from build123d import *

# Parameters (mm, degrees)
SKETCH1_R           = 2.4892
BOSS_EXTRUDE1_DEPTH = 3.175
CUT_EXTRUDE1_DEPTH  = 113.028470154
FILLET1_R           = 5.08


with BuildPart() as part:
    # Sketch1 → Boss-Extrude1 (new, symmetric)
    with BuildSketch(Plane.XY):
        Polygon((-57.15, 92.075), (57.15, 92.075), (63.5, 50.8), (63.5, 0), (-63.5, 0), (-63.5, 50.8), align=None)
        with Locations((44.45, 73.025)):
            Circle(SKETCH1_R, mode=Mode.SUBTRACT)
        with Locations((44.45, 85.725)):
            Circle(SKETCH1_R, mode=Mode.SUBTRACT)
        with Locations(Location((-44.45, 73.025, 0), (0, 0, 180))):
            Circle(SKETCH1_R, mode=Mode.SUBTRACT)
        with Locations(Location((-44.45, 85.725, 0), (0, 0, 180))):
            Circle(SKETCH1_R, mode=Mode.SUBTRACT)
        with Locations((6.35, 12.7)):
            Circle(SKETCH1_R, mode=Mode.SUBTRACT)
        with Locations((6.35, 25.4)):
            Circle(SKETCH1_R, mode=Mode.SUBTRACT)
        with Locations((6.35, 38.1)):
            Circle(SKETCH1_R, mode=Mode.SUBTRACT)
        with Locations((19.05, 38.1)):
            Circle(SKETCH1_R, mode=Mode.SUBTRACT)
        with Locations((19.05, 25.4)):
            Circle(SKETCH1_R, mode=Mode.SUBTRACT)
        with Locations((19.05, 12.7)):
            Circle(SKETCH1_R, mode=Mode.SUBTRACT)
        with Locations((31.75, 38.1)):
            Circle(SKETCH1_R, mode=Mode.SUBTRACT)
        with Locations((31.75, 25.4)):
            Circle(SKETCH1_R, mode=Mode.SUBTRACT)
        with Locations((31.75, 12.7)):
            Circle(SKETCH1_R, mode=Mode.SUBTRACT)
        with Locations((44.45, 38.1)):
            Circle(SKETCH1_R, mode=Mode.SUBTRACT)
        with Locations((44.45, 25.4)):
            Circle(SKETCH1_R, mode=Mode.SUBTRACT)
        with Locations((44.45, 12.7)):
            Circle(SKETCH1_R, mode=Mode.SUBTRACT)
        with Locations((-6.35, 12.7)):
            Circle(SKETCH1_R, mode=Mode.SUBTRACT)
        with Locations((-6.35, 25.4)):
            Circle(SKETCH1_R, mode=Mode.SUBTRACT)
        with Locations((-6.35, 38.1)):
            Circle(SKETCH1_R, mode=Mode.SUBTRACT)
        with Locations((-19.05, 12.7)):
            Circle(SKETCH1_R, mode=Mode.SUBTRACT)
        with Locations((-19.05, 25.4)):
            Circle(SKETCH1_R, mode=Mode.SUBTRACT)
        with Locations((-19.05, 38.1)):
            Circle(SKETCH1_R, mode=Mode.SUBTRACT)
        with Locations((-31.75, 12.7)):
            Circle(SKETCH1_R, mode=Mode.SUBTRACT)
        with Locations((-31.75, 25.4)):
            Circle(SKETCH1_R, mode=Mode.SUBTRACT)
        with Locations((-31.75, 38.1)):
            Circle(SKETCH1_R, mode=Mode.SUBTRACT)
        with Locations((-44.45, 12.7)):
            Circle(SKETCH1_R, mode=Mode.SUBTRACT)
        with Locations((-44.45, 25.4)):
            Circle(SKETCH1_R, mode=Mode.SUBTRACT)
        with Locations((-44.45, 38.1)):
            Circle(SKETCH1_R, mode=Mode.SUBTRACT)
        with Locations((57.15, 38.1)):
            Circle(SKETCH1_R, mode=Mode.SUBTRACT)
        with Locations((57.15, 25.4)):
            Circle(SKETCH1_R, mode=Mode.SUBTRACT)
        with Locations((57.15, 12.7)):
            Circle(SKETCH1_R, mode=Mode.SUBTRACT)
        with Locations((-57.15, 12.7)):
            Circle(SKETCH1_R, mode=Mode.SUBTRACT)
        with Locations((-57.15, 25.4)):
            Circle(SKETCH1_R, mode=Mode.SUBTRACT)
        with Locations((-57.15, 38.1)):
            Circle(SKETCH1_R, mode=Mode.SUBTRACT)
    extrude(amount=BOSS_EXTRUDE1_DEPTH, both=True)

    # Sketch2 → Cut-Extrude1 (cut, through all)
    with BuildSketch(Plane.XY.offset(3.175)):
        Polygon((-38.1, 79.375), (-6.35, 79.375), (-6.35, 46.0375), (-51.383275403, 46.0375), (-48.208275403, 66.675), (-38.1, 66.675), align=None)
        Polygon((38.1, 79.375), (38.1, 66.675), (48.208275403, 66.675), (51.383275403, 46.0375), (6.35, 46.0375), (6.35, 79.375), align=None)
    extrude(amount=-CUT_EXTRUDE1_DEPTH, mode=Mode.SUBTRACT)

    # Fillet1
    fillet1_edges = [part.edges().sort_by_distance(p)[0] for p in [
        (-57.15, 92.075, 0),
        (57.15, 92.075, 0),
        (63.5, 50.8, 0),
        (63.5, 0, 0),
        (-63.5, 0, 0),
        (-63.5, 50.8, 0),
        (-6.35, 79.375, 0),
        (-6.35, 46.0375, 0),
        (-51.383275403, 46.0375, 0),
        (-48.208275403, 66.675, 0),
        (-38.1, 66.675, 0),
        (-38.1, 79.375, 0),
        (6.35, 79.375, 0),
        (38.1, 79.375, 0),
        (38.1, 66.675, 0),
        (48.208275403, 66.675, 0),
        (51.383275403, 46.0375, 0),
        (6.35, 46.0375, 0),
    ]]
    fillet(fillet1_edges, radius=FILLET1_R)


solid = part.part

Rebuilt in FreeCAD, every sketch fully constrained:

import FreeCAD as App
import Part
import Sketcher

V = App.Vector
Q = App.Units.Quantity


def edges_at(feature, points):
    """Names of the edges that pass closest to the given points."""
    edges = feature.Shape.Edges
    near = lambda p: min(range(len(edges)), key=lambda i: edges[i].distToShape(Part.Vertex(*p))[0])
    return sorted({f"Edge{near(p) + 1}" for p in points})

doc = App.newDocument("Part")
body = doc.addObject("PartDesign::Body", "Body")

# Sketch on XY plane
sketch1 = body.newObject("Sketcher::SketchObject", "Sketch")
sketch1.AttachmentSupport = (doc.getObject("XY_Plane"), [""])
sketch1.MapMode = "FlatFace"
sketch1.addGeometry(Part.LineSegment(V(57.15, 92.075, 0), V(-57.15, 92.075, 0)), False)
sketch1.addGeometry(Part.LineSegment(V(-57.15, 92.075, 0), V(-63.5, 50.8, 0)), False)
sketch1.addGeometry(Part.LineSegment(V(-63.5, 50.8, 0), V(-63.5, 0, 0)), False)
sketch1.addGeometry(Part.LineSegment(V(-63.5, 0, 0), V(63.5, 0, 0)), False)
sketch1.addGeometry(Part.LineSegment(V(63.5, 0, 0), V(63.5, 50.8, 0)), False)
sketch1.addGeometry(Part.LineSegment(V(63.5, 50.8, 0), V(57.15, 92.075, 0)), False)
sketch1.addGeometry(Part.Circle(V(57.15, 12.7, 0), V(0, 0, 1), 2.4892), False)
sketch1.addGeometry(Part.Circle(V(44.45, 12.7, 0), V(0, 0, 1), 2.4892), False)
sketch1.addGeometry(Part.Circle(V(31.75, 12.7, 0), V(0, 0, 1), 2.4892), False)
sketch1.addGeometry(Part.Circle(V(57.15, 25.4, 0), V(0, 0, 1), 2.4892), False)
sketch1.addGeometry(Part.Circle(V(44.45, 25.4, 0), V(0, 0, 1), 2.4892), False)
sketch1.addGeometry(Part.Circle(V(31.75, 25.4, 0), V(0, 0, 1), 2.4892), False)
sketch1.addGeometry(Part.Circle(V(19.05, 12.7, 0), V(0, 0, 1), 2.4892), False)
sketch1.addGeometry(Part.Circle(V(6.35, 12.7, 0), V(0, 0, 1), 2.4892), False)
sketch1.addGeometry(Part.Circle(V(19.05, 25.4, 0), V(0, 0, 1), 2.4892), False)
sketch1.addGeometry(Part.Circle(V(6.35, 25.4, 0), V(0, 0, 1), 2.4892), False)
sketch1.addGeometry(Part.Circle(V(57.15, 38.1, 0), V(0, 0, 1), 2.4892), False)
sketch1.addGeometry(Part.Circle(V(44.45, 38.1, 0), V(0, 0, 1), 2.4892), False)
sketch1.addGeometry(Part.Circle(V(31.75, 38.1, 0), V(0, 0, 1), 2.4892), False)
sketch1.addGeometry(Part.Circle(V(19.05, 38.1, 0), V(0, 0, 1), 2.4892), False)
sketch1.addGeometry(Part.Circle(V(6.35, 38.1, 0), V(0, 0, 1), 2.4892), False)
sketch1.addGeometry(Part.Circle(V(-6.35, 12.7, 0), V(0, 0, 1), 2.4892), False)
sketch1.addGeometry(Part.Circle(V(-19.05, 12.7, 0), V(0, 0, 1), 2.4892), False)
sketch1.addGeometry(Part.Circle(V(-6.35, 25.4, 0), V(0, 0, 1), 2.4892), False)
sketch1.addGeometry(Part.Circle(V(-19.05, 25.4, 0), V(0, 0, 1), 2.4892), False)
sketch1.addGeometry(Part.Circle(V(-31.75, 12.7, 0), V(0, 0, 1), 2.4892), False)
sketch1.addGeometry(Part.Circle(V(-44.45, 12.7, 0), V(0, 0, 1), 2.4892), False)
sketch1.addGeometry(Part.Circle(V(-57.15, 12.7, 0), V(0, 0, 1), 2.4892), False)
sketch1.addGeometry(Part.Circle(V(-31.75, 25.4, 0), V(0, 0, 1), 2.4892), False)
sketch1.addGeometry(Part.Circle(V(-44.45, 25.4, 0), V(0, 0, 1), 2.4892), False)
sketch1.addGeometry(Part.Circle(V(-57.15, 25.4, 0), V(0, 0, 1), 2.4892), False)
sketch1.addGeometry(Part.Circle(V(-6.35, 38.1, 0), V(0, 0, 1), 2.4892), False)
sketch1.addGeometry(Part.Circle(V(-19.05, 38.1, 0), V(0, 0, 1), 2.4892), False)
sketch1.addGeometry(Part.Circle(V(-31.75, 38.1, 0), V(0, 0, 1), 2.4892), False)
sketch1.addGeometry(Part.Circle(V(-44.45, 38.1, 0), V(0, 0, 1), 2.4892), False)
sketch1.addGeometry(Part.Circle(V(-57.15, 38.1, 0), V(0, 0, 1), 2.4892), False)
sketch1.addGeometry(Part.Circle(V(44.45, 73.025, 0), V(0, 0, 1), 2.4892), False)
sketch1.addGeometry(Part.Circle(V(44.45, 85.725, 0), V(0, 0, 1), 2.4892), False)
sketch1.addGeometry(Part.Circle(V(-44.45, 73.025, 0), V(0, 0, 1), 2.4892), False)
sketch1.addGeometry(Part.Circle(V(-44.45, 85.725, 0), V(0, 0, 1), 2.4892), False)
sketch1.addConstraint(Sketcher.Constraint("Coincident", 0, 2, 1, 1))
sketch1.addConstraint(Sketcher.Constraint("Coincident", 1, 2, 2, 1))
sketch1.addConstraint(Sketcher.Constraint("Coincident", 2, 2, 3, 1))
sketch1.addConstraint(Sketcher.Constraint("Coincident", 3, 2, 4, 1))
sketch1.addConstraint(Sketcher.Constraint("Coincident", 4, 2, 5, 1))
sketch1.addConstraint(Sketcher.Constraint("Coincident", 5, 2, 0, 1))
sketch1.addConstraint(Sketcher.Constraint("Horizontal", 0))
sketch1.addConstraint(Sketcher.Constraint("Vertical", 2))
sketch1.addConstraint(Sketcher.Constraint("Horizontal", 3))
sketch1.addConstraint(Sketcher.Constraint("Vertical", 4))
sketch1.addConstraint(Sketcher.Constraint("Equal", 6, 7))
sketch1.addConstraint(Sketcher.Constraint("Equal", 7, 8))
sketch1.addConstraint(Sketcher.Constraint("Equal", 8, 9))
sketch1.addConstraint(Sketcher.Constraint("Equal", 9, 10))
sketch1.addConstraint(Sketcher.Constraint("Equal", 10, 11))
sketch1.addConstraint(Sketcher.Constraint("Equal", 11, 12))
sketch1.addConstraint(Sketcher.Constraint("Equal", 12, 13))
sketch1.addConstraint(Sketcher.Constraint("Equal", 13, 14))
sketch1.addConstraint(Sketcher.Constraint("Equal", 14, 15))
sketch1.addConstraint(Sketcher.Constraint("Equal", 15, 16))
sketch1.addConstraint(Sketcher.Constraint("Equal", 16, 17))
sketch1.addConstraint(Sketcher.Constraint("Equal", 17, 18))
sketch1.addConstraint(Sketcher.Constraint("Equal", 18, 19))
sketch1.addConstraint(Sketcher.Constraint("Equal", 19, 20))
sketch1.addConstraint(Sketcher.Constraint("Equal", 20, 21))
sketch1.addConstraint(Sketcher.Constraint("Equal", 21, 22))
sketch1.addConstraint(Sketcher.Constraint("Equal", 22, 23))
sketch1.addConstraint(Sketcher.Constraint("Equal", 23, 24))
sketch1.addConstraint(Sketcher.Constraint("Equal", 24, 25))
sketch1.addConstraint(Sketcher.Constraint("Equal", 25, 26))
sketch1.addConstraint(Sketcher.Constraint("Equal", 26, 27))
sketch1.addConstraint(Sketcher.Constraint("Equal", 27, 28))
sketch1.addConstraint(Sketcher.Constraint("Equal", 28, 29))
sketch1.addConstraint(Sketcher.Constraint("Equal", 29, 30))
sketch1.addConstraint(Sketcher.Constraint("Equal", 30, 31))
sketch1.addConstraint(Sketcher.Constraint("Equal", 31, 32))
sketch1.addConstraint(Sketcher.Constraint("Equal", 32, 33))
sketch1.addConstraint(Sketcher.Constraint("Equal", 33, 34))
sketch1.addConstraint(Sketcher.Constraint("Equal", 34, 35))
sketch1.addConstraint(Sketcher.Constraint("Equal", 35, 36))
sketch1.addConstraint(Sketcher.Constraint("Equal", 36, 37))
sketch1.addConstraint(Sketcher.Constraint("Equal", 37, 38))
sketch1.addConstraint(Sketcher.Constraint("Equal", 38, 39))
sketch1.addConstraint(Sketcher.Constraint("Symmetric", 2, 2, 3, 2, -1, 1))
sketch1.addConstraint(Sketcher.Constraint("Symmetric", 13, 3, 21, 3, -2))
sketch1.addConstraint(Sketcher.Constraint("Symmetric", 12, 3, 22, 3, -2))
sketch1.addConstraint(Sketcher.Constraint("Symmetric", 15, 3, 23, 3, -2))
sketch1.addConstraint(Sketcher.Constraint("Symmetric", 14, 3, 24, 3, -2))
sketch1.addConstraint(Sketcher.Constraint("Symmetric", 8, 3, 25, 3, -2))
sketch1.addConstraint(Sketcher.Constraint("Symmetric", 7, 3, 26, 3, -2))
sketch1.addConstraint(Sketcher.Constraint("Symmetric", 6, 3, 27, 3, -2))
sketch1.addConstraint(Sketcher.Constraint("Symmetric", 11, 3, 28, 3, -2))
sketch1.addConstraint(Sketcher.Constraint("Symmetric", 10, 3, 29, 3, -2))
sketch1.addConstraint(Sketcher.Constraint("Symmetric", 9, 3, 30, 3, -2))
sketch1.addConstraint(Sketcher.Constraint("Symmetric", 20, 3, 31, 3, -2))
sketch1.addConstraint(Sketcher.Constraint("Symmetric", 19, 3, 32, 3, -2))
sketch1.addConstraint(Sketcher.Constraint("Symmetric", 18, 3, 33, 3, -2))
sketch1.addConstraint(Sketcher.Constraint("Symmetric", 17, 3, 34, 3, -2))
sketch1.addConstraint(Sketcher.Constraint("Symmetric", 16, 3, 35, 3, -2))
sketch1.addConstraint(Sketcher.Constraint("Symmetric", 36, 3, 38, 3, -2))
sketch1.addConstraint(Sketcher.Constraint("Symmetric", 37, 3, 39, 3, -2))
sketch1.addConstraint(Sketcher.Constraint("Horizontal", 6, 3, 7, 3))
sketch1.addConstraint(Sketcher.Constraint("Horizontal", 7, 3, 8, 3))
sketch1.addConstraint(Sketcher.Constraint("Horizontal", 9, 3, 10, 3))
sketch1.addConstraint(Sketcher.Constraint("Horizontal", 10, 3, 11, 3))
sketch1.addConstraint(Sketcher.Constraint("Horizontal", 8, 3, 12, 3))
sketch1.addConstraint(Sketcher.Constraint("Horizontal", 12, 3, 13, 3))
sketch1.addConstraint(Sketcher.Constraint("Horizontal", 11, 3, 14, 3))
sketch1.addConstraint(Sketcher.Constraint("Horizontal", 14, 3, 15, 3))
sketch1.addConstraint(Sketcher.Constraint("Horizontal", 16, 3, 17, 3))
sketch1.addConstraint(Sketcher.Constraint("Horizontal", 17, 3, 18, 3))
sketch1.addConstraint(Sketcher.Constraint("Horizontal", 18, 3, 19, 3))
sketch1.addConstraint(Sketcher.Constraint("Horizontal", 19, 3, 20, 3))
sketch1.addConstraint(Sketcher.Constraint("Horizontal", 1, 2, 4, 2))
sketch1.addConstraint(Sketcher.Constraint("Vertical", 6, 3, 9, 3))
sketch1.addConstraint(Sketcher.Constraint("Vertical", 7, 3, 10, 3))
sketch1.addConstraint(Sketcher.Constraint("Vertical", 8, 3, 11, 3))
sketch1.addConstraint(Sketcher.Constraint("Vertical", 12, 3, 14, 3))
sketch1.addConstraint(Sketcher.Constraint("Vertical", 13, 3, 15, 3))
sketch1.addConstraint(Sketcher.Constraint("Vertical", 9, 3, 16, 3))
sketch1.addConstraint(Sketcher.Constraint("Vertical", 10, 3, 17, 3))
sketch1.addConstraint(Sketcher.Constraint("Vertical", 11, 3, 18, 3))
sketch1.addConstraint(Sketcher.Constraint("Vertical", 14, 3, 19, 3))
sketch1.addConstraint(Sketcher.Constraint("Vertical", 15, 3, 20, 3))
sketch1.addConstraint(Sketcher.Constraint("Vertical", 17, 3, 36, 3))
sketch1.addConstraint(Sketcher.Constraint("Vertical", 36, 3, 37, 3))
sketch1.addConstraint(Sketcher.Constraint("Vertical", 35, 3, 0, 2))
sketch1.addConstraint(Sketcher.Constraint("Vertical", 16, 3, 5, 2))
sketch1.addConstraint(Sketcher.Constraint("DistanceX", 3, 1, 3, 2, Q("5 in")))
sketch1.addConstraint(Sketcher.Constraint("DistanceY", 2, 2, 2, 1, Q("2 in")))
sketch1.addConstraint(Sketcher.Constraint("Diameter", 6, Q("0.196 in")))
sketch1.addConstraint(Sketcher.Constraint("DistanceX", 0, 2, 0, 1, Q("4.5 in")))
sketch1.addConstraint(Sketcher.Constraint("DistanceY", -1, 1, 9, 3, Q("1 in")))
sketch1.addConstraint(Sketcher.Constraint("DistanceX", 8, 3, 6, 3, Q("1 in")))
sketch1.addConstraint(Sketcher.Constraint("DistanceX", 12, 3, 7, 3, Q("1 in")))
sketch1.addConstraint(Sketcher.Constraint("DistanceX", 13, 3, 8, 3, Q("1 in")))
sketch1.addConstraint(Sketcher.Constraint("DistanceY", 6, 3, 16, 3, Q("1 in")))
sketch1.addConstraint(Sketcher.Constraint("DistanceX", 21, 3, 12, 3, Q("1 in")))
sketch1.addConstraint(Sketcher.Constraint("DistanceY", -1, 1, 6, 3, Q("0.5 in")))
sketch1.addConstraint(Sketcher.Constraint("DistanceY", 36, 3, 37, 3, Q("0.5 in")))
sketch1.addConstraint(Sketcher.Constraint("DistanceY", 39, 3, 0, 2, Q("0.25 in")))
sketch1.addConstraint(Sketcher.Constraint("DistanceY", -1, 1, 36, 3, Q("2.875 in")))
pad1 = body.newObject("PartDesign::Pad", "Pad")
pad1.Profile = sketch1
pad1.Length = Q("0.25 in")
pad1.Midplane = True

# Sketch on XY plane
sketch2 = body.newObject("Sketcher::SketchObject", "Sketch001")
sketch2.AttachmentSupport = (doc.getObject("XY_Plane"), [""])
sketch2.MapMode = "FlatFace"
sketch2.AttachmentOffset = App.Placement(V(0, 0, 0.125 * 25.4), App.Rotation())
sketch2.addGeometry(Part.LineSegment(V(-6.35, 79.375, 0), V(-38.1, 79.375, 0)), False)
sketch2.addGeometry(Part.LineSegment(V(-38.1, 79.375, 0), V(-38.1, 66.675, 0)), False)
sketch2.addGeometry(Part.LineSegment(V(-38.1, 66.675, 0), V(-48.208275, 66.675, 0)), False)
sketch2.addGeometry(Part.LineSegment(V(-48.208275, 66.675, 0), V(-51.383275, 46.0375, 0)), False)
sketch2.addGeometry(Part.LineSegment(V(-51.383275, 46.0375, 0), V(-6.35, 46.0375, 0)), False)
sketch2.addGeometry(Part.LineSegment(V(-6.35, 46.0375, 0), V(-6.35, 79.375, 0)), False)
sketch2.addGeometry(Part.LineSegment(V(38.1, 66.675, 0), V(38.1, 79.375, 0)), False)
sketch2.addGeometry(Part.LineSegment(V(38.1, 79.375, 0), V(6.35, 79.375, 0)), False)
sketch2.addGeometry(Part.LineSegment(V(6.35, 79.375, 0), V(6.35, 46.0375, 0)), False)
sketch2.addGeometry(Part.LineSegment(V(6.35, 46.0375, 0), V(51.383275, 46.0375, 0)), False)
sketch2.addGeometry(Part.LineSegment(V(51.383275, 46.0375, 0), V(48.208275, 66.675, 0)), False)
sketch2.addGeometry(Part.LineSegment(V(48.208275, 66.675, 0), V(38.1, 66.675, 0)), False)
sketch2.addConstraint(Sketcher.Constraint("Coincident", 0, 2, 1, 1))
sketch2.addConstraint(Sketcher.Constraint("Coincident", 1, 2, 2, 1))
sketch2.addConstraint(Sketcher.Constraint("Coincident", 2, 2, 3, 1))
sketch2.addConstraint(Sketcher.Constraint("Coincident", 3, 2, 4, 1))
sketch2.addConstraint(Sketcher.Constraint("Coincident", 4, 2, 5, 1))
sketch2.addConstraint(Sketcher.Constraint("Coincident", 5, 2, 0, 1))
sketch2.addConstraint(Sketcher.Constraint("Coincident", 6, 2, 7, 1))
sketch2.addConstraint(Sketcher.Constraint("Coincident", 7, 2, 8, 1))
sketch2.addConstraint(Sketcher.Constraint("Coincident", 8, 2, 9, 1))
sketch2.addConstraint(Sketcher.Constraint("Coincident", 9, 2, 10, 1))
sketch2.addConstraint(Sketcher.Constraint("Coincident", 10, 2, 11, 1))
sketch2.addConstraint(Sketcher.Constraint("Coincident", 11, 2, 6, 1))
sketch2.addConstraint(Sketcher.Constraint("Horizontal", 0))
sketch2.addConstraint(Sketcher.Constraint("Vertical", 1))
sketch2.addConstraint(Sketcher.Constraint("Horizontal", 2))
sketch2.addConstraint(Sketcher.Constraint("Horizontal", 4))
sketch2.addConstraint(Sketcher.Constraint("Vertical", 5))
sketch2.addConstraint(Sketcher.Constraint("Vertical", 6))
sketch2.addConstraint(Sketcher.Constraint("Horizontal", 7))
sketch2.addConstraint(Sketcher.Constraint("Vertical", 8))
sketch2.addConstraint(Sketcher.Constraint("Horizontal", 9))
sketch2.addConstraint(Sketcher.Constraint("Horizontal", 11))
sketch2.addConstraint(Sketcher.Constraint("Symmetric", 0, 2, 6, 2, -2))
sketch2.addConstraint(Sketcher.Constraint("Symmetric", 4, 2, 8, 2, -2))
sketch2.addConstraint(Sketcher.Constraint("Symmetric", 2, 2, 10, 2, -2))
sketch2.addConstraint(Sketcher.Constraint("Equal", 4, 9))
sketch2.addConstraint(Sketcher.Constraint("DistanceY", 1, 2, 1, 1, Q("0.5 in")))
sketch2.addConstraint(Sketcher.Constraint("DistanceX", 0, 2, 6, 2, Q("3 in")))
sketch2.addConstraint(Sketcher.Constraint("DistanceX", 0, 2, 0, 1, Q("1.25 in")))
sketch2.addConstraint(Sketcher.Constraint("DistanceY", 5, 1, 5, 2, Q("1.3125 in")))
sketch2.addConstraint(Sketcher.Constraint("DistanceY", -1, 1, 0, 2, Q("3.125 in")))
sketch2.addConstraint(Sketcher.Constraint("DistanceX", 3, 2, 2, 2, Q("0.125 in")))
sketch2.addConstraint(Sketcher.Constraint("DistanceX", 2, 2, 2, 1, 10.108275))
pocket1 = body.newObject("PartDesign::Pocket", "Pocket")
pocket1.Profile = sketch2
pocket1.Type = "ThroughAll"
doc.recompute()

fillet = body.newObject("PartDesign::Fillet", "Fillet")
fillet.Base = (pocket1, edges_at(pocket1, [
    (-57.15, 92.075, 0),
    (57.15, 92.075, 0),
    (63.5, 50.8, 0),
    (63.5, 0, 0),
    (-63.5, 0, 0),
    (-63.5, 50.8, 0),
    (-6.35, 79.375, 0),
    (-6.35, 46.038, 0),
    (-51.383, 46.038, 0),
    (-48.208, 66.675, 0),
    (-38.1, 66.675, 0),
    (-38.1, 79.375, 0),
    (6.35, 79.375, 0),
    (38.1, 79.375, 0),
    (38.1, 66.675, 0),
    (48.208, 66.675, 0),
    (51.383, 46.038, 0),
    (6.35, 46.038, 0),
]))
fillet.Radius = Q("0.2 in")

doc.recompute()
